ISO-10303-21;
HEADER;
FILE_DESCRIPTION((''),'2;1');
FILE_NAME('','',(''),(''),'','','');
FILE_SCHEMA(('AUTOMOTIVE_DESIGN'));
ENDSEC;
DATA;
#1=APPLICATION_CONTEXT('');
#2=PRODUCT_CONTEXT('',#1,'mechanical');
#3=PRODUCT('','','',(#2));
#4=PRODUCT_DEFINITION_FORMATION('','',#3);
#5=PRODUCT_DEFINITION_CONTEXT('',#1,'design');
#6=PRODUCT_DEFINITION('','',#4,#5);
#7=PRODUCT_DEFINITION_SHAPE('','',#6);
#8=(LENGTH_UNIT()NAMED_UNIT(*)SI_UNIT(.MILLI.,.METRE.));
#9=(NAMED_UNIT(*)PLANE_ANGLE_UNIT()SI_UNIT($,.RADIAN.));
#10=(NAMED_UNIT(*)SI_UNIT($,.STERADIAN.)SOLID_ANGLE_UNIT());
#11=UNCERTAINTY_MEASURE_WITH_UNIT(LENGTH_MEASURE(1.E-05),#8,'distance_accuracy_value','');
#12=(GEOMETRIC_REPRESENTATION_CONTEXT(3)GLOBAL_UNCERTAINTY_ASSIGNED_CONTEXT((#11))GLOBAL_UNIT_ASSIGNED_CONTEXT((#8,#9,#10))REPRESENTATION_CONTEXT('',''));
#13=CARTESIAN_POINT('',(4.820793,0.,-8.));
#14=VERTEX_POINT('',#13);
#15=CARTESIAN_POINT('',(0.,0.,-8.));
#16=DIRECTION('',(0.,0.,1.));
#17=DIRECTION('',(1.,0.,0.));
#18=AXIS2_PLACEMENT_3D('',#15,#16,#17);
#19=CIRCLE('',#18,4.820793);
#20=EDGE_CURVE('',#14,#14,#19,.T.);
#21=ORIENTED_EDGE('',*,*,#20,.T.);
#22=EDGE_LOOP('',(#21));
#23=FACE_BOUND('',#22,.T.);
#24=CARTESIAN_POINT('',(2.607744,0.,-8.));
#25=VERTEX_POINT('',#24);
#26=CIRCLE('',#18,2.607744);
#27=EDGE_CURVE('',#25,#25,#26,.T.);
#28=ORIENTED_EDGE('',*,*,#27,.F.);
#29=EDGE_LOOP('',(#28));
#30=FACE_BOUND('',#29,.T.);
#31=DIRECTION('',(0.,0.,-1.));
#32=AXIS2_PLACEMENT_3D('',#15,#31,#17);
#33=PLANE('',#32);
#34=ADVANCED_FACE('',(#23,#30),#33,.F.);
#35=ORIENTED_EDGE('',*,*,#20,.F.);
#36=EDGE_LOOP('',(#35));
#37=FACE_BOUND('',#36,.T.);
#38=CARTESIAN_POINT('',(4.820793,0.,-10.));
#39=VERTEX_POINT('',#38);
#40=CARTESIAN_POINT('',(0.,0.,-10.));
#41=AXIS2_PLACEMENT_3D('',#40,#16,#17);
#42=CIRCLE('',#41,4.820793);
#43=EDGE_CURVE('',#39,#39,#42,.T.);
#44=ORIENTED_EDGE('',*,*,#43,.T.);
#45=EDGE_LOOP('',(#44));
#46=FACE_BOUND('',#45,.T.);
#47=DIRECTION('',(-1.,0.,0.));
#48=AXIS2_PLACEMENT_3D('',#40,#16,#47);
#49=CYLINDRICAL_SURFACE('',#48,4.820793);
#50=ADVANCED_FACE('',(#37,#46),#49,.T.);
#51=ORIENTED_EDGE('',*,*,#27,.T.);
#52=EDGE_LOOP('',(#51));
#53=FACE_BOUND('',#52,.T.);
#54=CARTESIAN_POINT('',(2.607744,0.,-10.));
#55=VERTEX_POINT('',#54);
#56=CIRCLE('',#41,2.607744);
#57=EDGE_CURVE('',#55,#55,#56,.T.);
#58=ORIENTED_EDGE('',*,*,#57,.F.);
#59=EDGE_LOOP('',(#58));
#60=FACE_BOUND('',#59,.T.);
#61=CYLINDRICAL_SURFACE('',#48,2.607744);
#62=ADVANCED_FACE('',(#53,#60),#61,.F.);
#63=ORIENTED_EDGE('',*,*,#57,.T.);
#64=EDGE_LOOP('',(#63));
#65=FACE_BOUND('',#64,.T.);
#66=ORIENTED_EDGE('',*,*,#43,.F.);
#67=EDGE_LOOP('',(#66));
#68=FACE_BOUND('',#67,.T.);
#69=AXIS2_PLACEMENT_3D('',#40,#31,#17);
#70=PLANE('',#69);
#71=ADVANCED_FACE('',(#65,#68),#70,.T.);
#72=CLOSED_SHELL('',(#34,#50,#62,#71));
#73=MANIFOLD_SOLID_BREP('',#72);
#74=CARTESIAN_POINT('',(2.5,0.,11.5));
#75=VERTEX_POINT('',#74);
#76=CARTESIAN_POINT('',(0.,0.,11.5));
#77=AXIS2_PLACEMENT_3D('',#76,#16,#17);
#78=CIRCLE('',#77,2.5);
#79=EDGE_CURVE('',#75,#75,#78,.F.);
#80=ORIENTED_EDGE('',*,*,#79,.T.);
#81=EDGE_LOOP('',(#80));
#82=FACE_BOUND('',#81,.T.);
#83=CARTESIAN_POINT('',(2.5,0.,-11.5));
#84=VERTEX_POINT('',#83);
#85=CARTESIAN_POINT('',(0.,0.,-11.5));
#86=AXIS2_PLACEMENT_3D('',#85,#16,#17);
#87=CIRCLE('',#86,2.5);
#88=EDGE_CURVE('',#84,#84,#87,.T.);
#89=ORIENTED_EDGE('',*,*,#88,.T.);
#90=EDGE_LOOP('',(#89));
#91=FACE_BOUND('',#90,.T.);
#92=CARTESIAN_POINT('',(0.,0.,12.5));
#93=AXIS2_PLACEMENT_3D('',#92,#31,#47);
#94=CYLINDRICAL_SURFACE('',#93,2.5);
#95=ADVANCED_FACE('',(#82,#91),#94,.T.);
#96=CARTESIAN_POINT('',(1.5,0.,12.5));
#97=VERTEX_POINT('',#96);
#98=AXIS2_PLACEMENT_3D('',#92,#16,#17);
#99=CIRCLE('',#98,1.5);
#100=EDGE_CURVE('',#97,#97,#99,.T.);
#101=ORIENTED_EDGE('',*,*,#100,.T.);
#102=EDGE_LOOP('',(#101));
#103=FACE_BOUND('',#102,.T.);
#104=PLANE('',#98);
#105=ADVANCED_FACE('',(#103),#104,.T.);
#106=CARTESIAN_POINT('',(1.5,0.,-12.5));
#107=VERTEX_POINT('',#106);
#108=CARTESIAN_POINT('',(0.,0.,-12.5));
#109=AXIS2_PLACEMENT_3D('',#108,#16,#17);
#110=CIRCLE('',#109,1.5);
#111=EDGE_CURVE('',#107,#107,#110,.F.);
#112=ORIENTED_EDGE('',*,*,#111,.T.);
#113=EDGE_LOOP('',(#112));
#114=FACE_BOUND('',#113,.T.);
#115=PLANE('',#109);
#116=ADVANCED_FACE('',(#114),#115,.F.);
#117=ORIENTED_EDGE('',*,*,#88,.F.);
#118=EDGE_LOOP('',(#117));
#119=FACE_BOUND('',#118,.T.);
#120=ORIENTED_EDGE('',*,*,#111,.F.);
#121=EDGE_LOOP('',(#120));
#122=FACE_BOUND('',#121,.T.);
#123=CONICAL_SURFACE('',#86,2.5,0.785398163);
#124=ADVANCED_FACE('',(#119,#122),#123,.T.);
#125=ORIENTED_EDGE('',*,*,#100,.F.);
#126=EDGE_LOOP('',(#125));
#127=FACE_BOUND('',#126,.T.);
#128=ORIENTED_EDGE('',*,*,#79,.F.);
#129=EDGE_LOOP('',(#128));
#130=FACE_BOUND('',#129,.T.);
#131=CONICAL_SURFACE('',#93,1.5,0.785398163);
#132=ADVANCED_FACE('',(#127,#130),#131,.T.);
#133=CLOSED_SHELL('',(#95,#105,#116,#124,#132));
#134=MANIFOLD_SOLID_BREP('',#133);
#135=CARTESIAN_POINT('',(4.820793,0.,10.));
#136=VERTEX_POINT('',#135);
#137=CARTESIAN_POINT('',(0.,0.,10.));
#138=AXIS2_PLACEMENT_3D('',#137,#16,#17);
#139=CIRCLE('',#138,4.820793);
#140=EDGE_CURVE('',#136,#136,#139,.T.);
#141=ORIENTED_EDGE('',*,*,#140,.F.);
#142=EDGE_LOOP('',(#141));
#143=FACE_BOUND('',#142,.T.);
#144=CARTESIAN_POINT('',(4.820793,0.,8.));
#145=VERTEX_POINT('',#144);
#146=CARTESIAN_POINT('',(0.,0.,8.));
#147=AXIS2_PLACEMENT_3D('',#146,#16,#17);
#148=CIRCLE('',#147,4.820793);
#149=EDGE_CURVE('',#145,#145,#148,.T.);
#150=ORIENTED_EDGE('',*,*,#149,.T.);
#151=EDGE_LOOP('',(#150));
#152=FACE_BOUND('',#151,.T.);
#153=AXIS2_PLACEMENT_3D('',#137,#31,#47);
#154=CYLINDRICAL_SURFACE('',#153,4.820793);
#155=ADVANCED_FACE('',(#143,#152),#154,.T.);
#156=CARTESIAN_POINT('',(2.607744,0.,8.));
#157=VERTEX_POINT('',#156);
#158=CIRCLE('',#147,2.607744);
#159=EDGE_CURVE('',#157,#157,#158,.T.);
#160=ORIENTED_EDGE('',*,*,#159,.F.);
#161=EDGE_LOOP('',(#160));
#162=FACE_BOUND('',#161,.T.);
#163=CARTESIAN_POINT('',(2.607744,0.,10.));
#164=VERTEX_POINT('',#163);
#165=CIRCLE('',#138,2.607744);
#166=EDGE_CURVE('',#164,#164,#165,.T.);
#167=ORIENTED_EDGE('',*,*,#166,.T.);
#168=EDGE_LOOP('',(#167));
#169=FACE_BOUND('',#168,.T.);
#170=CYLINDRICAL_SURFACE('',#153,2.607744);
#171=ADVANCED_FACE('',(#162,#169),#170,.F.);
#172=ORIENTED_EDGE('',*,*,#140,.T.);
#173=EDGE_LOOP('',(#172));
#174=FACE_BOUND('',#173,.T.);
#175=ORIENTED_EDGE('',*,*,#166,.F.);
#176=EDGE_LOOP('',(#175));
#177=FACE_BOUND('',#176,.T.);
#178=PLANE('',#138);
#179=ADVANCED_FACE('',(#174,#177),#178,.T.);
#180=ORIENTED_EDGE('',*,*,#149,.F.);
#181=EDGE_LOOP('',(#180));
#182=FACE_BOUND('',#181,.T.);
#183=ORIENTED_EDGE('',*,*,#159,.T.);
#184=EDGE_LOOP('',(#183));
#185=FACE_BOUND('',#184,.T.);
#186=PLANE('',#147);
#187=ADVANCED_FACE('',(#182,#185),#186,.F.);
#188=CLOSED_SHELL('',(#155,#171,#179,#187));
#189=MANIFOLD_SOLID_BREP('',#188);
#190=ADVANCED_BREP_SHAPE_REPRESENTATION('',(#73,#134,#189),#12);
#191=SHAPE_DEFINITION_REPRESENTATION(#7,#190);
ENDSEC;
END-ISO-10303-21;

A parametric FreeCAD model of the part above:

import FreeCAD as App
import Part
import Sketcher

V = App.Vector
Q = App.Units.Quantity


def edges_at(feature, points):
    """Names of the edges that pass closest to the given points."""
    edges = feature.Shape.Edges
    near = lambda p: min(range(len(edges)), key=lambda i: edges[i].distToShape(Part.Vertex(*p))[0])
    return sorted({f"Edge{near(p) + 1}" for p in points})

doc = App.newDocument("Part")
params = doc.addObject("Spreadsheet::Sheet", "Params")
for row, (alias, value) in enumerate([
    ("sketch1_diameter", "5 mm"),
    ("pad1_length", "25 mm"),
    ("chamfer_size", "1 mm"),
    ("pad2_length", "2 mm"),
], start=1):
    params.set(f"A{row}", alias)
    params.set(f"B{row}", "=" + value)
    params.setAlias(f"B{row}", alias)

body = doc.addObject("PartDesign::Body", "Body")

sketch1 = body.newObject("Sketcher::SketchObject", "Sketch")
sketch1.AttachmentSupport = (doc.getObject("XY_Plane"), [""])
sketch1.MapMode = "FlatFace"
sketch1.addGeometry(Part.Circle(V(0, 0, 0), V(0, 0, 1), 2.5), False)
sketch1.addConstraint(Sketcher.Constraint("Coincident", 0, 3, -1, 1))
sketch1.addConstraint(Sketcher.Constraint("Diameter", 0, Q("5 mm")))
sketch1.setExpression("Constraints[1]", "Params.sketch1_diameter")
pad1 = body.newObject("PartDesign::Pad", "Pad")
pad1.Profile = sketch1
pad1.setExpression("Length", "Params.pad1_length")
pad1.Midplane = True
doc.recompute()

chamfer = body.newObject("PartDesign::Chamfer", "Chamfer")
chamfer.Base = (pad1, edges_at(pad1, [(-2.5, 0, -12.5), (-2.5, 0, 12.5)]))
chamfer.setExpression("Size", "Params.chamfer_size")
body2 = doc.addObject("PartDesign::Body", "Body001")

sketch2 = body2.newObject("Sketcher::SketchObject", "Sketch001")
sketch2.AttachmentSupport = (doc.getObject("XY_Plane001"), [""])
sketch2.MapMode = "FlatFace"
sketch2.AttachmentOffset = App.Placement(V(0, 0, 8), App.Rotation())
sketch2.addGeometry(Part.Circle(V(0, 0, 0), V(0, 0, 1), 4.820793), False)
sketch2.addGeometry(Part.Circle(V(0, 0, 0), V(0, 0, 1), 2.607744), False)
sketch2.addConstraint(Sketcher.Constraint("Coincident", 0, 3, -1, 1))
sketch2.addConstraint(Sketcher.Constraint("Coincident", 1, 3, -1, 1))
sketch2.addConstraint(Sketcher.Constraint("Diameter", 1, Q("5.215489 mm")))
sketch2.addConstraint(Sketcher.Constraint("Diameter", 0, Q("9.641587 mm")))
pad2 = body2.newObject("PartDesign::Pad", "Pad001")
pad2.Profile = sketch2
pad2.setExpression("Length", "Params.pad2_length")
body3 = doc.addObject("PartDesign::Body", "Body002")
doc.recompute()

mirroring = doc.addObject("Part::Mirroring", "Mirroring")
mirroring.Source = body2
mirroring.Base = V(0, 0, 0)
mirroring.Normal = V(0, 0, 1)
body3.BaseFeature = mirroring
doc.recompute()
mirroring.Visibility = False

doc.recompute()
